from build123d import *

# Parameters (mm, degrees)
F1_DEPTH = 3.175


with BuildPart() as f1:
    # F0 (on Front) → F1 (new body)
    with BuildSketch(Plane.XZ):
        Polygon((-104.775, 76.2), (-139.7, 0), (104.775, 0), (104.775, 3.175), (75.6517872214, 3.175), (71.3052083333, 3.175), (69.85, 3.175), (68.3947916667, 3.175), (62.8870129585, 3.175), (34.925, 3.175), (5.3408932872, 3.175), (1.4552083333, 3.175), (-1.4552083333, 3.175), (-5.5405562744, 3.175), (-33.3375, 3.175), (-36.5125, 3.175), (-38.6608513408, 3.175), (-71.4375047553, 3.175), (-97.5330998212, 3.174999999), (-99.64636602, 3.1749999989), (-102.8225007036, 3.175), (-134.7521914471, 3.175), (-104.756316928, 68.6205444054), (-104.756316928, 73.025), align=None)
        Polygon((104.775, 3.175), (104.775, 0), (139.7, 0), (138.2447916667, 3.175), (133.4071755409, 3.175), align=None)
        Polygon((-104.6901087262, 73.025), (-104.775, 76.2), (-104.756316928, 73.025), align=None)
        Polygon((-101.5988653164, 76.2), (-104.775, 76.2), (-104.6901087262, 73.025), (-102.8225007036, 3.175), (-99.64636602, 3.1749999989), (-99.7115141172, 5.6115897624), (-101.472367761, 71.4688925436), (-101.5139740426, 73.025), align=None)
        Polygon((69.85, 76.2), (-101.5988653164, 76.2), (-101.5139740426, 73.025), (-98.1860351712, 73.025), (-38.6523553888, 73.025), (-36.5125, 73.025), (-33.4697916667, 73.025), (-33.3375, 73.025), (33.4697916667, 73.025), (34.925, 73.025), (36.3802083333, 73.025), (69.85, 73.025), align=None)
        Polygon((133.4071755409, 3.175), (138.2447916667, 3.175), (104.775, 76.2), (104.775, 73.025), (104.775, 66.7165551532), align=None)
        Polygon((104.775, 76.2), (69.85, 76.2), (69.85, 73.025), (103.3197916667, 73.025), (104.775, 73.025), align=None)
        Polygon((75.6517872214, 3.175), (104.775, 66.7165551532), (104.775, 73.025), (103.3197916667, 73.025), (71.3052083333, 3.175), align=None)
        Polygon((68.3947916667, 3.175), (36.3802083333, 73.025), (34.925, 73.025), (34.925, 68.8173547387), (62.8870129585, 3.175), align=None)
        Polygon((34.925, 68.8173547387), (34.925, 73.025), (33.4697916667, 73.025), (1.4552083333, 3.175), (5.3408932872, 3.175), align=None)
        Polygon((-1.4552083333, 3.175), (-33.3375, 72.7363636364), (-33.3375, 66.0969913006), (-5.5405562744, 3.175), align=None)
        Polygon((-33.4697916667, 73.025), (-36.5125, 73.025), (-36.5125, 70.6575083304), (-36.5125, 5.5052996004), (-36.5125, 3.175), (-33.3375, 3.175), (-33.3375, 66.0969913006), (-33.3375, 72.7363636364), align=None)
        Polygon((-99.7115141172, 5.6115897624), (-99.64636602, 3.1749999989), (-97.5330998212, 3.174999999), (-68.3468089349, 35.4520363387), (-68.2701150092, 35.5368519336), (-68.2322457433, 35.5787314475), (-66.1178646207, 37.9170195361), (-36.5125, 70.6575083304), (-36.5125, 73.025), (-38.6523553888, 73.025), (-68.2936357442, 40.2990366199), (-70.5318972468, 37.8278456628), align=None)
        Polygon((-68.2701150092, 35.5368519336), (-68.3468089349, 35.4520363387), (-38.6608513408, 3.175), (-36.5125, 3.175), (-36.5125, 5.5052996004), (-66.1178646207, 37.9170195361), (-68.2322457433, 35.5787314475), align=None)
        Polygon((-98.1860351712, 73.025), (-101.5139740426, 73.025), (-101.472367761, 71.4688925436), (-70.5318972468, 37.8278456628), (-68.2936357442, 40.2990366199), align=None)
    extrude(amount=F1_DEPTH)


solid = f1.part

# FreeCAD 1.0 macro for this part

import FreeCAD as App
import Part
import Sketcher

V = App.Vector
Q = App.Units.Quantity


def add_polygon(sketch, points):
    """Adds a closed chain of lines whose ends are joined by coincident constraints."""
    first, n = sketch.GeometryCount, len(points)
    for a, b in zip(points, points[1:] + points[:1]):
        sketch.addGeometry(Part.LineSegment(App.Vector(*a, 0), App.Vector(*b, 0)), False)
    for i in range(n):
        sketch.addConstraint(Sketcher.Constraint("Coincident", first + i, 2, first + (i + 1) % n, 1))

doc = App.newDocument("Part")
body = doc.addObject("PartDesign::Body", "Body")

# Sketch on XZ plane
sketch1 = body.newObject("Sketcher::SketchObject", "Sketch")
sketch1.AttachmentSupport = (doc.getObject("XZ_Plane"), [""])
sketch1.MapMode = "FlatFace"
add_polygon(sketch1, [(-104.775, 76.2), (-139.7, 0), (139.7, 0), (138.244792, 3.175), (104.775, 76.2)])  # lines 0-4
add_polygon(sketch1, [(104.775, 66.716555), (133.407176, 3.175), (75.651787, 3.175)])  # lines 5-7
add_polygon(sketch1, [(71.305208, 3.175), (68.394792, 3.175), (36.380208, 73.025), (103.319792, 73.025)])  # lines 8-11
add_polygon(sketch1, [(62.887013, 3.175), (5.340893, 3.175), (34.925, 68.817355)])  # lines 12-14
add_polygon(sketch1, [(1.455208, 3.175), (-1.455208, 3.175), (-33.3375, 72.736364), (-33.469792, 73.025), (33.469792, 73.025)])  # lines 15-19
add_polygon(sketch1, [(-33.3375, 66.096991), (-5.540556, 3.175), (-33.3375, 3.175)])  # lines 20-22
add_polygon(sketch1, [(-38.660851, 3.175), (-71.437505, 3.175), (-97.5331, 3.175), (-68.346809, 35.452036)])  # lines 23-26
add_polygon(sketch1, [(-66.117865, 37.91702), (-36.5125, 70.657508), (-36.5125, 5.5053)])  # lines 27-29
add_polygon(sketch1, [(-99.711514, 5.61159), (-101.472368, 71.468893), (-70.531897, 37.827846)])  # lines 30-32
add_polygon(sketch1, [(-98.186035, 73.025), (-38.652355, 73.025), (-68.293636, 40.299037)])  # lines 33-35
add_polygon(sketch1, [(-102.822501, 3.175), (-134.752191, 3.175), (-104.756317, 68.620544), (-104.756317, 73.025), (-104.690109, 73.025)])  # lines 36-40
sketch1.addConstraint([
    Sketcher.Constraint("Horizontal", 1),
    Sketcher.Constraint("Horizontal", 4),
    Sketcher.Constraint("Horizontal", 6),
    Sketcher.Constraint("Horizontal", 8),
    Sketcher.Constraint("Horizontal", 10),
    Sketcher.Constraint("Horizontal", 12),
    Sketcher.Constraint("Horizontal", 15),
    Sketcher.Constraint("Horizontal", 18),
    Sketcher.Constraint("Horizontal", 21),
    Sketcher.Constraint("Vertical", 22),
    Sketcher.Constraint("Horizontal", 23),
    Sketcher.Constraint("Horizontal", 24),
    Sketcher.Constraint("Vertical", 28),
    Sketcher.Constraint("Horizontal", 33),
    Sketcher.Constraint("Horizontal", 36),
    Sketcher.Constraint("Vertical", 38),
    Sketcher.Constraint("Horizontal", 39),
    Sketcher.Constraint("Symmetric", 0, 2, 1, 2, -1, 1),
    Sketcher.Constraint("Parallel", 2, 3),
    Sketcher.Constraint("Parallel", 0, 7),
    Sketcher.Constraint("Parallel", 3, 9),
    Sketcher.Constraint("Parallel", 7, 11),
    Sketcher.Constraint("Parallel", 9, 16),
    Sketcher.Constraint("Parallel", 16, 17),
    Sketcher.Constraint("Parallel", 11, 19),
    Sketcher.Constraint("Parallel", 25, 27),
    Sketcher.Constraint("Parallel", 26, 31),
    Sketcher.Constraint("Parallel", 32, 34),
    Sketcher.Constraint("Parallel", 29, 35),
    Sketcher.Constraint("Parallel", 19, 37),
    Sketcher.Constraint("Parallel", 30, 40),
    Sketcher.Constraint("Horizontal", 2, 2, 5, 2),
    Sketcher.Constraint("Horizontal", 6, 2, 8, 2),
    Sketcher.Constraint("Horizontal", 11, 2, 12, 2),
    Sketcher.Constraint("Horizontal", 14, 2, 15, 2),
    Sketcher.Constraint("Horizontal", 10, 2, 17, 2),
    Sketcher.Constraint("Horizontal", 19, 2, 20, 2),
    Sketcher.Constraint("Horizontal", 21, 2, 23, 2),
    Sketcher.Constraint("Horizontal", 18, 2, 33, 2),
    Sketcher.Constraint("Horizontal", 26, 2, 36, 2),
    Sketcher.Constraint("Horizontal", 35, 2, 38, 2),
    Sketcher.Constraint("Vertical", 3, 2, 7, 2),
    Sketcher.Constraint("Vertical", 16, 2, 21, 2),
    Sketcher.Constraint("Equal", 8, 15),
    Sketcher.Constraint("Equal", 9, 11),
    Sketcher.Constraint("DistanceX", 1, 1, 1, 2, Q("11 in")),
    Sketcher.Constraint("DistanceY", -1, 1, 3, 2, Q("3 in")),
    Sketcher.Constraint("DistanceX", 4, 2, 4, 1, Q("8.25 in")),
    Sketcher.Constraint("DistanceX", 23, 2, 21, 2, Q("1.5000002 in")),
    Sketcher.Constraint("DistanceX", 8, 2, 2, 2, Q("2.75 in")),
    Sketcher.Constraint("DistanceY", 8, 2, 9, 2, Q("2.75 in")),
    Sketcher.Constraint("DistanceX", 13, 2, 7, 2, Q("2.75 in")),
    Sketcher.Constraint("DistanceX", 15, 2, 8, 2, Q("2.75 in")),
    Sketcher.Constraint("DistanceY", -1, 1, 2, 2, Q("0.125 in")),
    Sketcher.Constraint("DistanceX", 16, 2, -1, 1, Q("1.3125 in")),
    Sketcher.Constraint("DistanceX", 27, 2, -1, 1, Q("1.4375 in")),
    Sketcher.Constraint("DistanceX", 6, 2, 6, 1, 57.755388),
    Sketcher.Constraint("DistanceX", 12, 2, 12, 1, 57.54612),
    Sketcher.Constraint("DistanceX", 33, 1, 33, 2, 59.53368),
    Sketcher.Constraint("DistanceX", 36, 2, 36, 1, 31.929691),
    Sketcher.Constraint("DistanceX", 39, 1, 39, 2, 0.066208),
    Sketcher.Constraint("DistanceY", 22, 1, 22, 2, 62.921991),
    Sketcher.Constraint("DistanceY", 28, 2, 28, 1, 65.152209),
    Sketcher.Constraint("DistanceX", 24, 2, -1, 1, 97.5331),
    Sketcher.Constraint("DistanceY", -1, 1, 28, 2, 5.5053),
    Sketcher.Constraint("DistanceX", 40, 2, -1, 1, 102.822501),
    Sketcher.Constraint("DistanceX", 12, 2, 8, 2, 63.053898),
    Sketcher.Constraint("DistanceY", 7, 2, 13, 2, 2.1008),
    Sketcher.Constraint("DistanceY", 25, 2, 34, 2, 4.847),
    Sketcher.Constraint("DistanceX", 35, 2, 34, 2, 29.892399),
    Sketcher.Constraint("DistanceY", 31, 2, 37, 2, 30.792699),
    Sketcher.Constraint("Distance", 13, 72.000959),
    Sketcher.Constraint("Distance", 25, 43.51605),
    Sketcher.Constraint("Distance", 27, 44.140879),
    Sketcher.Constraint("Distance", 30, 65.880839),
    Sketcher.Constraint("DistanceX", 8, 2, 8, 1, 2.910417),
    Sketcher.Constraint("DistanceX", 21, 2, 21, 1, 27.796944),
    Sketcher.Constraint("DistanceX", 23, 2, 23, 1, 32.776653),
    Sketcher.Constraint("DistanceY", 38, 1, 38, 2, 4.404456),
    Sketcher.Constraint("DistanceX", 30, 2, 25, 2, 33.125559),
    Sketcher.Constraint("DistanceX", 29, 2, 33, 2, 27.465509),
])
pad1 = body.newObject("PartDesign::Pad", "Pad")
pad1.Profile = sketch1
pad1.Length = Q("0.125 in")

doc.recompute()
